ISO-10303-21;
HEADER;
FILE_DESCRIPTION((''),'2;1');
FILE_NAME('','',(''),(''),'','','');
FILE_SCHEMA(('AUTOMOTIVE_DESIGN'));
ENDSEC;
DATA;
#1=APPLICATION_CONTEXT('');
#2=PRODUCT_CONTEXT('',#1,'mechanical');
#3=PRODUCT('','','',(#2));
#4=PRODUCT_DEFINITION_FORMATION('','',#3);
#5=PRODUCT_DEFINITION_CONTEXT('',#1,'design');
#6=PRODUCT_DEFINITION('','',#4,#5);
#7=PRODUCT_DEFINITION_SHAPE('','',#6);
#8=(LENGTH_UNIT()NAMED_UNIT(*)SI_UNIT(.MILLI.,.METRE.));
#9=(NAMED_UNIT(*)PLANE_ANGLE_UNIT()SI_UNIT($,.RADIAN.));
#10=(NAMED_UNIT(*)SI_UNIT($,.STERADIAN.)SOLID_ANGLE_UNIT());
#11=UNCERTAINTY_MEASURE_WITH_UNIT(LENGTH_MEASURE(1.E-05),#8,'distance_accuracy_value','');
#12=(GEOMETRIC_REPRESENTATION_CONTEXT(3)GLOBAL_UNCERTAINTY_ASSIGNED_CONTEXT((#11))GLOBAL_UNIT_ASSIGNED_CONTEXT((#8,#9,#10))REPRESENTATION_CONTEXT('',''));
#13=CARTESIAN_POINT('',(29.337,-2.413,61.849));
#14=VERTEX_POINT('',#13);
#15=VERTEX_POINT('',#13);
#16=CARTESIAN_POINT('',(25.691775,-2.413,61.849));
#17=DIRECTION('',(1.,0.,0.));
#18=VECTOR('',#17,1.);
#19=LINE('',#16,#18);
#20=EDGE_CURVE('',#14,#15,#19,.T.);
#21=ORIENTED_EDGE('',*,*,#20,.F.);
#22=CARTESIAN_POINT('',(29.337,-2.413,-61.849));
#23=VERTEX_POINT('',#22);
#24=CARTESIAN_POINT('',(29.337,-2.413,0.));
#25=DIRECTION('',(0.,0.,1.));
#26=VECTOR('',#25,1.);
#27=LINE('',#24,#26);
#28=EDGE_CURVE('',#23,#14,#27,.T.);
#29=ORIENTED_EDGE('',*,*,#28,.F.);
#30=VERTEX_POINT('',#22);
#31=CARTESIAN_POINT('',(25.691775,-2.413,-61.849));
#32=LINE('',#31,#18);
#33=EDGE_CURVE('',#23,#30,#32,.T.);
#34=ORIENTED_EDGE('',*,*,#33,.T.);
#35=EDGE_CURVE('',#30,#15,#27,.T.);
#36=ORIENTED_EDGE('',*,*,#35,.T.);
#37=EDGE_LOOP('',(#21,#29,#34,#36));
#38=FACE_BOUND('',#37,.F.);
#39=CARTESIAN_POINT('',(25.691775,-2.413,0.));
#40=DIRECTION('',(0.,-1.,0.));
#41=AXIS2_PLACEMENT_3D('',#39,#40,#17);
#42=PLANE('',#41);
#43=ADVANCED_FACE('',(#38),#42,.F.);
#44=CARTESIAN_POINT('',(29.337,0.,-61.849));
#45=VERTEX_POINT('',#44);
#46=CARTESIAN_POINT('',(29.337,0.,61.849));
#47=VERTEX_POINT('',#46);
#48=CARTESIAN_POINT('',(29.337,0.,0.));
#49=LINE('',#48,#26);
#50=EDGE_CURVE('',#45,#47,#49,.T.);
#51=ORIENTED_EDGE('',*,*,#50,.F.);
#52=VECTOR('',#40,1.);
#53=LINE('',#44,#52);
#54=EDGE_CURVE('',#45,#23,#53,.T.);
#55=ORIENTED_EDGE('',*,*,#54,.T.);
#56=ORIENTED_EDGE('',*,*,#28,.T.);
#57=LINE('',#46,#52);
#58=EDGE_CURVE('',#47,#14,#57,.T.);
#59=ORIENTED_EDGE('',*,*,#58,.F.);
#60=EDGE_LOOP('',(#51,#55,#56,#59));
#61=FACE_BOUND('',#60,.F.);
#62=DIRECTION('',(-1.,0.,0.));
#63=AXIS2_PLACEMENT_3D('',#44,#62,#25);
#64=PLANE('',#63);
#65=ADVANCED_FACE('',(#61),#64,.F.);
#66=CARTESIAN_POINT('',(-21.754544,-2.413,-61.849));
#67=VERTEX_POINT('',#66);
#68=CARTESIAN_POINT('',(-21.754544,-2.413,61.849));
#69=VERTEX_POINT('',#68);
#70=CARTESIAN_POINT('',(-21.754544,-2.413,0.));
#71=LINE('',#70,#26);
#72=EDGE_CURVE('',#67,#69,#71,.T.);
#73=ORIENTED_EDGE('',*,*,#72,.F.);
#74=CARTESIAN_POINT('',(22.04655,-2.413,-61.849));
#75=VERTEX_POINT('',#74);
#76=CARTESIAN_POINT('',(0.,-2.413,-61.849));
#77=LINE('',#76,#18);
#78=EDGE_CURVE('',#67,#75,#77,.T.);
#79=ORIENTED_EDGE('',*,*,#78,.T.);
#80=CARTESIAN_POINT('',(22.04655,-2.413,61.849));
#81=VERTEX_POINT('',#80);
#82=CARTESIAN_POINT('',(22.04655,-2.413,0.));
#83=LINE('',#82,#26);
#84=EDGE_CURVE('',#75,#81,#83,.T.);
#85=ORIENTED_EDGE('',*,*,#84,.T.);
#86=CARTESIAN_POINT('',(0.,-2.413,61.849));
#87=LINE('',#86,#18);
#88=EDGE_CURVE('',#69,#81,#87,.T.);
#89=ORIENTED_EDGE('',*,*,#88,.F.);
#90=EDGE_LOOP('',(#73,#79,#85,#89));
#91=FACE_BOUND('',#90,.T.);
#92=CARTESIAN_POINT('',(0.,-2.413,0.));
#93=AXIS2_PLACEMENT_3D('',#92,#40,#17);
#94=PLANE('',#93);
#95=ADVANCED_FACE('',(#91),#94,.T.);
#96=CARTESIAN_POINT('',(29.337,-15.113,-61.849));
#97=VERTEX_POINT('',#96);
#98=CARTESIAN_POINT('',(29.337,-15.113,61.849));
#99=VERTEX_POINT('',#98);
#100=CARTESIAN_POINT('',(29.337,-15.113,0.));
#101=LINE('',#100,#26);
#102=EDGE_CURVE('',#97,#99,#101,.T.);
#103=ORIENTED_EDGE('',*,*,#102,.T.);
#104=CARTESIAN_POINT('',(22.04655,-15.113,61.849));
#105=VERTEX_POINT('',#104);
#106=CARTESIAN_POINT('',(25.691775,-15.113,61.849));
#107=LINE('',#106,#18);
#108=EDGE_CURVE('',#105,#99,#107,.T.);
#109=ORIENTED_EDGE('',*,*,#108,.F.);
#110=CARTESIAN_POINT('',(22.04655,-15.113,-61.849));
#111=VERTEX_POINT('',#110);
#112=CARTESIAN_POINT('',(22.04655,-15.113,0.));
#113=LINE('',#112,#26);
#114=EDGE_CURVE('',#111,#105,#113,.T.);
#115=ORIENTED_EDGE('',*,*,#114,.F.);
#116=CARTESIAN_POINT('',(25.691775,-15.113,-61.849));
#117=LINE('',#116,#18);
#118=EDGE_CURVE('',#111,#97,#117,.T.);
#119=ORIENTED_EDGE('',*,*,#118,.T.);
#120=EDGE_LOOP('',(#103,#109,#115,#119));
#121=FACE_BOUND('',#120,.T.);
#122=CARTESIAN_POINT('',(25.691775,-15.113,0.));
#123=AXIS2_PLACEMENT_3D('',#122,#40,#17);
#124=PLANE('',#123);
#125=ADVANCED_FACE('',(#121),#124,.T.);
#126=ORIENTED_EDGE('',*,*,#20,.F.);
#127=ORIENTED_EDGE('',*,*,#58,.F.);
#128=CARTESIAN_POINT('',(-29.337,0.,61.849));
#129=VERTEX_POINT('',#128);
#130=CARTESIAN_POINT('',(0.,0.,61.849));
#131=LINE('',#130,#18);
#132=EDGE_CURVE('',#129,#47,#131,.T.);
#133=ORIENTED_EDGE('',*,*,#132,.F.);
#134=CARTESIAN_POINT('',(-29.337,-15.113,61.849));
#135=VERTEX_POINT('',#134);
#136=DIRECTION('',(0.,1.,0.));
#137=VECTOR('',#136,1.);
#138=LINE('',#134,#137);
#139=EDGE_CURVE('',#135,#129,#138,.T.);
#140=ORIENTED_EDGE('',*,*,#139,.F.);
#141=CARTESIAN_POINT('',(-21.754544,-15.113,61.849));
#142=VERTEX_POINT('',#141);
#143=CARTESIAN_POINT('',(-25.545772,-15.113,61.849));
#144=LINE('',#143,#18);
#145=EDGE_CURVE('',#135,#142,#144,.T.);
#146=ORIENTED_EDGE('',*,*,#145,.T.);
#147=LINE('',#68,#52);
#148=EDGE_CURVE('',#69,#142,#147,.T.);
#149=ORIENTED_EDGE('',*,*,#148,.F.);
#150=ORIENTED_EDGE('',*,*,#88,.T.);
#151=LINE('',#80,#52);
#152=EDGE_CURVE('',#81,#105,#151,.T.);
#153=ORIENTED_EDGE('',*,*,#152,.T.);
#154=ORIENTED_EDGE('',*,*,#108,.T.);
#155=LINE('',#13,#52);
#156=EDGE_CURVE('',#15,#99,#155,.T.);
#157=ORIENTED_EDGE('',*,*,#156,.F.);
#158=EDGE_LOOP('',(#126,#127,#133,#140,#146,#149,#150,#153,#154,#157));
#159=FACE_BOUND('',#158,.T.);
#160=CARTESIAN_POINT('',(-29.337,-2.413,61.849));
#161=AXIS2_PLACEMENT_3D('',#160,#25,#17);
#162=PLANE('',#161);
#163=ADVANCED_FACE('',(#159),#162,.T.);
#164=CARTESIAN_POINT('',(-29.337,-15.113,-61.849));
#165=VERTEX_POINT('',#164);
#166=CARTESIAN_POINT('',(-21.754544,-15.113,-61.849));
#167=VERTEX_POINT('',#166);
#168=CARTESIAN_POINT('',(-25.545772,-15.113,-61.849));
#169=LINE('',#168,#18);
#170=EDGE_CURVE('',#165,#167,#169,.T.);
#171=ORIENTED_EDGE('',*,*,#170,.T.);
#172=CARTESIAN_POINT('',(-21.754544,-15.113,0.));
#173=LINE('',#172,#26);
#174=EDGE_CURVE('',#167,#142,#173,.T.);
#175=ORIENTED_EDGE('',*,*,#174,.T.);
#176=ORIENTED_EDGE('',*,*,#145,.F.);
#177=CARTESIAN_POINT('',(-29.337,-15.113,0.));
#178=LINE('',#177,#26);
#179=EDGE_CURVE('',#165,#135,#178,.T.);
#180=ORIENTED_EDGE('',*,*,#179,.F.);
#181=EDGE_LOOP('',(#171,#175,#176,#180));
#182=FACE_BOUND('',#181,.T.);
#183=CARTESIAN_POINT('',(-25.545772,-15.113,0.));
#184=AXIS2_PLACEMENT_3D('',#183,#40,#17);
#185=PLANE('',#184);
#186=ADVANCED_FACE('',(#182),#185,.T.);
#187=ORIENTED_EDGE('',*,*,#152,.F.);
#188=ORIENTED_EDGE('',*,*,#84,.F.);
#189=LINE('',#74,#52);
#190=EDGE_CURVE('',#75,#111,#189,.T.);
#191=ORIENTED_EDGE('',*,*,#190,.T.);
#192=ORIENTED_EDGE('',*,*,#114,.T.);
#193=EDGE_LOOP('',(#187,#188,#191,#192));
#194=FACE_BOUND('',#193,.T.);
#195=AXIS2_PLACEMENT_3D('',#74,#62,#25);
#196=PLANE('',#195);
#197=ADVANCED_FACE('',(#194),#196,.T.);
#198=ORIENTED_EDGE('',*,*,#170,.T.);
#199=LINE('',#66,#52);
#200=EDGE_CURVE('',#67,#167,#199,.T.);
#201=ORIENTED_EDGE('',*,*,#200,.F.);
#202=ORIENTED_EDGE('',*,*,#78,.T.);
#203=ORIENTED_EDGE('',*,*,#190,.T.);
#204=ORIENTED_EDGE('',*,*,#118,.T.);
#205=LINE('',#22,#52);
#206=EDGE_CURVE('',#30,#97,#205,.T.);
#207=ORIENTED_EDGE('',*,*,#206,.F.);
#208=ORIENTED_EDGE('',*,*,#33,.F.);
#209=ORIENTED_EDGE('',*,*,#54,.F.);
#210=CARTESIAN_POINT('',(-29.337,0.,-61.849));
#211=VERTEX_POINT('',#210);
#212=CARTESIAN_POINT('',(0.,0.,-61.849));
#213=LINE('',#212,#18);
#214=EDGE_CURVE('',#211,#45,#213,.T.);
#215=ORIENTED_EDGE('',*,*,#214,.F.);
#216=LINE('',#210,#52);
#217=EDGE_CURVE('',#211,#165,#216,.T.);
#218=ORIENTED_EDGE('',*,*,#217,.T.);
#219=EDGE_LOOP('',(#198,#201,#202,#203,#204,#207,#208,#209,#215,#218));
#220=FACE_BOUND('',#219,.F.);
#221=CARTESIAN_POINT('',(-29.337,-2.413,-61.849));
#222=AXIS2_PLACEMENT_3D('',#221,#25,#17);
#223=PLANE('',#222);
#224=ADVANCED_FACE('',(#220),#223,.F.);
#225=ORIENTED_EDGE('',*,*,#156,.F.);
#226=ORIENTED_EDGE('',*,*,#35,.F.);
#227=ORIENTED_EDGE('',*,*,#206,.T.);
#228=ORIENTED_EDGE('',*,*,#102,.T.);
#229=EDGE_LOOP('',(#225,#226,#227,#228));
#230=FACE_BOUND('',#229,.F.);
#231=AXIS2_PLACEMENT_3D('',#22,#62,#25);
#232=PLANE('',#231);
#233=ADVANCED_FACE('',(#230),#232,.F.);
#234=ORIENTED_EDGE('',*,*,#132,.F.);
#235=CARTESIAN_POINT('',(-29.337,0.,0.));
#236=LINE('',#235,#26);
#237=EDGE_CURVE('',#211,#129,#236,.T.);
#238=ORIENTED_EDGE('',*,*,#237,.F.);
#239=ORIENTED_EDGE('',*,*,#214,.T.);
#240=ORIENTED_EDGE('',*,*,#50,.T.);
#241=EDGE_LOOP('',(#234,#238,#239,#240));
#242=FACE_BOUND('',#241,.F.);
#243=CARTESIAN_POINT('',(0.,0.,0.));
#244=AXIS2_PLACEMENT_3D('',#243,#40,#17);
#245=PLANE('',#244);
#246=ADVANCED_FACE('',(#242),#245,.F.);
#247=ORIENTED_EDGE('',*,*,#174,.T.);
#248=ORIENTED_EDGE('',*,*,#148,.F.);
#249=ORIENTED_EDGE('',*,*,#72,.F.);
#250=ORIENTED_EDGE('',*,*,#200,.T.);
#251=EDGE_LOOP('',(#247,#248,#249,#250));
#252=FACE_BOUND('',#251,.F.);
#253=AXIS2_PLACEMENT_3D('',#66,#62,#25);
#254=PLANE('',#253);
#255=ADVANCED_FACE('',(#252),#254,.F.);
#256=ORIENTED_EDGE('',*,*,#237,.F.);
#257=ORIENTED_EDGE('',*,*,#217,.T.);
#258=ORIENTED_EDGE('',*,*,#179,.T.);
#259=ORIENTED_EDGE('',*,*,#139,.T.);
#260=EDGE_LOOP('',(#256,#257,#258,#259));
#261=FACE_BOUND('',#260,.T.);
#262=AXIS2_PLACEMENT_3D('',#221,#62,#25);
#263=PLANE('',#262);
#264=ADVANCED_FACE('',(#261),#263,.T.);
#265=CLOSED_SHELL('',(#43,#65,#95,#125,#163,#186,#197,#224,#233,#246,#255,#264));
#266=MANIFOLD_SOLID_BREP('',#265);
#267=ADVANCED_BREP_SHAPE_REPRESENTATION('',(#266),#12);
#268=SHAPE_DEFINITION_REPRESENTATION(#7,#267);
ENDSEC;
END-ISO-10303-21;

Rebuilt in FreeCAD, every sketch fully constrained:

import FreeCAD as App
import Part
import Sketcher

V = App.Vector
Q = App.Units.Quantity

doc = App.newDocument("Part")
body = doc.addObject("PartDesign::Body", "Body")

# Sketch on XZ plane
sketch1 = body.newObject("Sketcher::SketchObject", "Sketch")
sketch1.AttachmentSupport = (doc.getObject("XZ_Plane"), [""])
sketch1.MapMode = "FlatFace"
sketch1.addGeometry([
    Part.LineSegment(V(-29, 62, 0), V(-29, -62, 0)),
    Part.LineSegment(V(-29, -62, 0), V(29, -62, 0)),
    Part.LineSegment(V(29, -62, 0), V(29, 62, 0)),
    Part.LineSegment(V(29, 62, 0), V(-29, 62, 0)),
], False)
sketch1.addConstraint([
    Sketcher.Constraint("Coincident", 0, 2, 1, 1),
    Sketcher.Constraint("Coincident", 1, 2, 2, 1),
    Sketcher.Constraint("Coincident", 2, 2, 3, 1),
    Sketcher.Constraint("Coincident", 3, 2, 0, 1),
    Sketcher.Constraint("Vertical", 0),
    Sketcher.Constraint("Horizontal", 1),
    Sketcher.Constraint("Vertical", 2),
    Sketcher.Constraint("Horizontal", 3),
    Sketcher.Constraint("Symmetric", 0, 2, 2, 2, -1, 1),
    Sketcher.Constraint("DistanceX", 1, 1, 1, 2, Q("2.31 in")),
    Sketcher.Constraint("DistanceY", 0, 2, 0, 1, Q("4.87 in")),
])
pad1 = body.newObject("PartDesign::Pad", "Pad")
pad1.Profile = sketch1
pad1.Length = Q("0.095 in")

# Sketch on XZ plane
sketch2 = body.newObject("Sketcher::SketchObject", "Sketch001")
sketch2.AttachmentSupport = (doc.getObject("XZ_Plane"), [""])
sketch2.MapMode = "FlatFace"
sketch2.AttachmentOffset = App.Placement(V(0, 0, 0.095 * 25.4), App.Rotation())
sketch2.addGeometry([
    Part.LineSegment(V(-29, 62, 0), V(-29, -62, 0)),  # 0
    Part.LineSegment(V(-29, -62, 0), V(-22, -62, 0)),  # 1
    Part.LineSegment(V(-22, -62, 0), V(-22, 62, 0)),  # 2
    Part.LineSegment(V(-22, 62, 0), V(-29, 62, 0)),  # 3
    Part.LineSegment(V(22, 62, 0), V(22, -62, 0)),  # 4
    Part.LineSegment(V(22, -62, 0), V(29, -62, 0)),  # 5
    Part.LineSegment(V(29, -62, 0), V(29, 62, 0)),  # 6
    Part.LineSegment(V(29, 62, 0), V(22, 62, 0)),  # 7
], False)
sketch2.addConstraint([
    Sketcher.Constraint("Coincident", 0, 2, 1, 1),
    Sketcher.Constraint("Coincident", 1, 2, 2, 1),
    Sketcher.Constraint("Coincident", 2, 2, 3, 1),
    Sketcher.Constraint("Coincident", 3, 2, 0, 1),
    Sketcher.Constraint("Coincident", 4, 2, 5, 1),
    Sketcher.Constraint("Coincident", 5, 2, 6, 1),
    Sketcher.Constraint("Coincident", 6, 2, 7, 1),
    Sketcher.Constraint("Coincident", 7, 2, 4, 1),
    Sketcher.Constraint("Vertical", 0),
    Sketcher.Constraint("Horizontal", 1),
    Sketcher.Constraint("Vertical", 2),
    Sketcher.Constraint("Horizontal", 3),
    Sketcher.Constraint("Vertical", 4),
    Sketcher.Constraint("Horizontal", 5),
    Sketcher.Constraint("Vertical", 6),
    Sketcher.Constraint("Horizontal", 7),
    Sketcher.Constraint("Symmetric", 3, 2, 5, 2, -1, 1),
    Sketcher.Constraint("Horizontal", 1, 2, 4, 2),
    Sketcher.Constraint("Horizontal", 3, 2, 6, 2),
    Sketcher.Constraint("DistanceY", 0, 2, 0, 1, Q("4.87 in")),
    Sketcher.Constraint("DistanceX", 0, 2, 5, 2, Q("2.31 in")),
    Sketcher.Constraint("DistanceX", 5, 1, 5, 2, 7.290451),
    Sketcher.Constraint("DistanceX", 1, 1, 1, 2, 7.582456),
])
pad2 = body.newObject("PartDesign::Pad", "Pad001")
pad2.Profile = sketch2
pad2.Length = Q("0.5 in")

doc.recompute()
